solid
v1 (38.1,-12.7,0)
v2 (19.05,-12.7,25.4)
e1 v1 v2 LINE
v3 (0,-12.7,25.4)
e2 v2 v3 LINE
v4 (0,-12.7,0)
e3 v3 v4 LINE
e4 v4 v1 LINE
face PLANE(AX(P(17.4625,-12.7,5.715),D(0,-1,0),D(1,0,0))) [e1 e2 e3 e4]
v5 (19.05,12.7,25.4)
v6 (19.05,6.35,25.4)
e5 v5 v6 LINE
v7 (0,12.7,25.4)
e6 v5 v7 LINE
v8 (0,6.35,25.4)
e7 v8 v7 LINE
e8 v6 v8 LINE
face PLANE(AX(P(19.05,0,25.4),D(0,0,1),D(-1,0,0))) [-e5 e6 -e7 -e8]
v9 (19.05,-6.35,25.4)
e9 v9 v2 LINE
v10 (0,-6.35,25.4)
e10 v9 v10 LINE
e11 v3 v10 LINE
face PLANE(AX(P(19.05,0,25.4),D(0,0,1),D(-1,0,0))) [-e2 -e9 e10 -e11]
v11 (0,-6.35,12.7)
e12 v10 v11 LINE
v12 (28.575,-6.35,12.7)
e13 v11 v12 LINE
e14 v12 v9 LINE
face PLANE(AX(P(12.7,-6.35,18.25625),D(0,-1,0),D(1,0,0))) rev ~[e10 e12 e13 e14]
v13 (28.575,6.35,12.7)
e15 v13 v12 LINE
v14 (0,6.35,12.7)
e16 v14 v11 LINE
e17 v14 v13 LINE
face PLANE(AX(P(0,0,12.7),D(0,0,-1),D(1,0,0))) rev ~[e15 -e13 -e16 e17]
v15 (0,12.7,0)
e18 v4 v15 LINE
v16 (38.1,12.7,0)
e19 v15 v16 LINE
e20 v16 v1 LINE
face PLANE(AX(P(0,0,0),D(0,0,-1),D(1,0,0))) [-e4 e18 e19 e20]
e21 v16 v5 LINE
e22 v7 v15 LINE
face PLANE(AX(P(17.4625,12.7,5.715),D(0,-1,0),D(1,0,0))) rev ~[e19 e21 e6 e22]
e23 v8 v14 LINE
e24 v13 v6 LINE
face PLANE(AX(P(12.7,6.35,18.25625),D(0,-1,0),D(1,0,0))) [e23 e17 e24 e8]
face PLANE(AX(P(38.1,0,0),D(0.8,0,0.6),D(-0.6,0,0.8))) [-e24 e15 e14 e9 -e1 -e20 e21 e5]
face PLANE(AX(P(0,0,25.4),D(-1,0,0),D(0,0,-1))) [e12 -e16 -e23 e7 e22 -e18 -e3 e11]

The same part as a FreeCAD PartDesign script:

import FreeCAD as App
import Part
import Sketcher
from FreeCAD import Vector
Q = App.Units.Quantity

doc = App.newDocument("Part")
body = doc.addObject("PartDesign::Body", "Body")

# Sketch on XZ plane
sketch1 = doc.addObject("Sketcher::SketchObject", "Sketch")
body.addObject(sketch1)
sketch1.AttachmentSupport = (doc.XZ_Plane, [""])
sketch1.MapMode = "FlatFace"
sketch1.addGeometry([
    Part.LineSegment(Vector(0, 0, 0), Vector(38, 0, 0)),
    Part.LineSegment(Vector(38, 0, 0), Vector(19, 25, 0)),
    Part.LineSegment(Vector(19, 25, 0), Vector(0, 25, 0)),
    Part.LineSegment(Vector(0, 25, 0), Vector(0, 0, 0)),
], False)
sketch1.addConstraint([
    Sketcher.Constraint("Coincident", 0, 2, 1, 1),
    Sketcher.Constraint("Coincident", 1, 2, 2, 1),
    Sketcher.Constraint("Coincident", 2, 2, 3, 1),
    Sketcher.Constraint("Coincident", 3, 2, 0, 1),
    Sketcher.Constraint("Horizontal", 0),
    Sketcher.Constraint("Horizontal", 2),
    Sketcher.Constraint("Vertical", 3),
    Sketcher.Constraint("Coincident", 3, 2, -1, 1),
    Sketcher.Constraint("DistanceY", 3, 2, 3, 1, Q("1 in")),
    Sketcher.Constraint("DistanceX", 0, 1, 0, 2, Q("1.5 in")),
    Sketcher.Constraint("DistanceX", 2, 2, 2, 1, Q("0.75 in")),
])
pad1 = doc.addObject("PartDesign::Pad", "Pad")
body.addObject(pad1)
pad1.Profile = sketch1
pad1.Length = Q("1 in")
pad1.Midplane = True

# Sketch on XZ plane
sketch2 = doc.addObject("Sketcher::SketchObject", "Sketch001")
body.addObject(sketch2)
sketch2.AttachmentSupport = (doc.XZ_Plane, [""])
sketch2.MapMode = "FlatFace"
sketch2.addGeometry([
    Part.LineSegment(Vector(0, 25, 0), Vector(0, 13, 0)),
    Part.LineSegment(Vector(0, 13, 0), Vector(29, 13, 0)),
    Part.LineSegment(Vector(29, 13, 0), Vector(19, 25, 0)),
    Part.LineSegment(Vector(19, 25, 0), Vector(0, 25, 0)),
], False)
sketch2.addConstraint([
    Sketcher.Constraint("Coincident", 0, 2, 1, 1),
    Sketcher.Constraint("Coincident", 1, 2, 2, 1),
    Sketcher.Constraint("Coincident", 2, 2, 3, 1),
    Sketcher.Constraint("Coincident", 3, 2, 0, 1),
    Sketcher.Constraint("Vertical", 0),
    Sketcher.Constraint("Horizontal", 1),
    Sketcher.Constraint("Horizontal", 3),
    Sketcher.Constraint("PointOnObject", 0, 2, -2),
    Sketcher.Constraint("DistanceY", 0, 2, 0, 1, Q("0.5 in")),
    Sketcher.Constraint("DistanceY", -1, 1, 2, 2, Q("1 in")),
    Sketcher.Constraint("DistanceX", 3, 2, 3, 1, Q("0.75 in")),
    Sketcher.Constraint("DistanceX", 1, 1, 1, 2, Q("1.125 in")),
])
pocket1 = doc.addObject("PartDesign::Pocket", "Pocket")
body.addObject(pocket1)
pocket1.Profile = sketch2
pocket1.Length = Q("0.5 in")
pocket1.Midplane = True

doc.recompute()
